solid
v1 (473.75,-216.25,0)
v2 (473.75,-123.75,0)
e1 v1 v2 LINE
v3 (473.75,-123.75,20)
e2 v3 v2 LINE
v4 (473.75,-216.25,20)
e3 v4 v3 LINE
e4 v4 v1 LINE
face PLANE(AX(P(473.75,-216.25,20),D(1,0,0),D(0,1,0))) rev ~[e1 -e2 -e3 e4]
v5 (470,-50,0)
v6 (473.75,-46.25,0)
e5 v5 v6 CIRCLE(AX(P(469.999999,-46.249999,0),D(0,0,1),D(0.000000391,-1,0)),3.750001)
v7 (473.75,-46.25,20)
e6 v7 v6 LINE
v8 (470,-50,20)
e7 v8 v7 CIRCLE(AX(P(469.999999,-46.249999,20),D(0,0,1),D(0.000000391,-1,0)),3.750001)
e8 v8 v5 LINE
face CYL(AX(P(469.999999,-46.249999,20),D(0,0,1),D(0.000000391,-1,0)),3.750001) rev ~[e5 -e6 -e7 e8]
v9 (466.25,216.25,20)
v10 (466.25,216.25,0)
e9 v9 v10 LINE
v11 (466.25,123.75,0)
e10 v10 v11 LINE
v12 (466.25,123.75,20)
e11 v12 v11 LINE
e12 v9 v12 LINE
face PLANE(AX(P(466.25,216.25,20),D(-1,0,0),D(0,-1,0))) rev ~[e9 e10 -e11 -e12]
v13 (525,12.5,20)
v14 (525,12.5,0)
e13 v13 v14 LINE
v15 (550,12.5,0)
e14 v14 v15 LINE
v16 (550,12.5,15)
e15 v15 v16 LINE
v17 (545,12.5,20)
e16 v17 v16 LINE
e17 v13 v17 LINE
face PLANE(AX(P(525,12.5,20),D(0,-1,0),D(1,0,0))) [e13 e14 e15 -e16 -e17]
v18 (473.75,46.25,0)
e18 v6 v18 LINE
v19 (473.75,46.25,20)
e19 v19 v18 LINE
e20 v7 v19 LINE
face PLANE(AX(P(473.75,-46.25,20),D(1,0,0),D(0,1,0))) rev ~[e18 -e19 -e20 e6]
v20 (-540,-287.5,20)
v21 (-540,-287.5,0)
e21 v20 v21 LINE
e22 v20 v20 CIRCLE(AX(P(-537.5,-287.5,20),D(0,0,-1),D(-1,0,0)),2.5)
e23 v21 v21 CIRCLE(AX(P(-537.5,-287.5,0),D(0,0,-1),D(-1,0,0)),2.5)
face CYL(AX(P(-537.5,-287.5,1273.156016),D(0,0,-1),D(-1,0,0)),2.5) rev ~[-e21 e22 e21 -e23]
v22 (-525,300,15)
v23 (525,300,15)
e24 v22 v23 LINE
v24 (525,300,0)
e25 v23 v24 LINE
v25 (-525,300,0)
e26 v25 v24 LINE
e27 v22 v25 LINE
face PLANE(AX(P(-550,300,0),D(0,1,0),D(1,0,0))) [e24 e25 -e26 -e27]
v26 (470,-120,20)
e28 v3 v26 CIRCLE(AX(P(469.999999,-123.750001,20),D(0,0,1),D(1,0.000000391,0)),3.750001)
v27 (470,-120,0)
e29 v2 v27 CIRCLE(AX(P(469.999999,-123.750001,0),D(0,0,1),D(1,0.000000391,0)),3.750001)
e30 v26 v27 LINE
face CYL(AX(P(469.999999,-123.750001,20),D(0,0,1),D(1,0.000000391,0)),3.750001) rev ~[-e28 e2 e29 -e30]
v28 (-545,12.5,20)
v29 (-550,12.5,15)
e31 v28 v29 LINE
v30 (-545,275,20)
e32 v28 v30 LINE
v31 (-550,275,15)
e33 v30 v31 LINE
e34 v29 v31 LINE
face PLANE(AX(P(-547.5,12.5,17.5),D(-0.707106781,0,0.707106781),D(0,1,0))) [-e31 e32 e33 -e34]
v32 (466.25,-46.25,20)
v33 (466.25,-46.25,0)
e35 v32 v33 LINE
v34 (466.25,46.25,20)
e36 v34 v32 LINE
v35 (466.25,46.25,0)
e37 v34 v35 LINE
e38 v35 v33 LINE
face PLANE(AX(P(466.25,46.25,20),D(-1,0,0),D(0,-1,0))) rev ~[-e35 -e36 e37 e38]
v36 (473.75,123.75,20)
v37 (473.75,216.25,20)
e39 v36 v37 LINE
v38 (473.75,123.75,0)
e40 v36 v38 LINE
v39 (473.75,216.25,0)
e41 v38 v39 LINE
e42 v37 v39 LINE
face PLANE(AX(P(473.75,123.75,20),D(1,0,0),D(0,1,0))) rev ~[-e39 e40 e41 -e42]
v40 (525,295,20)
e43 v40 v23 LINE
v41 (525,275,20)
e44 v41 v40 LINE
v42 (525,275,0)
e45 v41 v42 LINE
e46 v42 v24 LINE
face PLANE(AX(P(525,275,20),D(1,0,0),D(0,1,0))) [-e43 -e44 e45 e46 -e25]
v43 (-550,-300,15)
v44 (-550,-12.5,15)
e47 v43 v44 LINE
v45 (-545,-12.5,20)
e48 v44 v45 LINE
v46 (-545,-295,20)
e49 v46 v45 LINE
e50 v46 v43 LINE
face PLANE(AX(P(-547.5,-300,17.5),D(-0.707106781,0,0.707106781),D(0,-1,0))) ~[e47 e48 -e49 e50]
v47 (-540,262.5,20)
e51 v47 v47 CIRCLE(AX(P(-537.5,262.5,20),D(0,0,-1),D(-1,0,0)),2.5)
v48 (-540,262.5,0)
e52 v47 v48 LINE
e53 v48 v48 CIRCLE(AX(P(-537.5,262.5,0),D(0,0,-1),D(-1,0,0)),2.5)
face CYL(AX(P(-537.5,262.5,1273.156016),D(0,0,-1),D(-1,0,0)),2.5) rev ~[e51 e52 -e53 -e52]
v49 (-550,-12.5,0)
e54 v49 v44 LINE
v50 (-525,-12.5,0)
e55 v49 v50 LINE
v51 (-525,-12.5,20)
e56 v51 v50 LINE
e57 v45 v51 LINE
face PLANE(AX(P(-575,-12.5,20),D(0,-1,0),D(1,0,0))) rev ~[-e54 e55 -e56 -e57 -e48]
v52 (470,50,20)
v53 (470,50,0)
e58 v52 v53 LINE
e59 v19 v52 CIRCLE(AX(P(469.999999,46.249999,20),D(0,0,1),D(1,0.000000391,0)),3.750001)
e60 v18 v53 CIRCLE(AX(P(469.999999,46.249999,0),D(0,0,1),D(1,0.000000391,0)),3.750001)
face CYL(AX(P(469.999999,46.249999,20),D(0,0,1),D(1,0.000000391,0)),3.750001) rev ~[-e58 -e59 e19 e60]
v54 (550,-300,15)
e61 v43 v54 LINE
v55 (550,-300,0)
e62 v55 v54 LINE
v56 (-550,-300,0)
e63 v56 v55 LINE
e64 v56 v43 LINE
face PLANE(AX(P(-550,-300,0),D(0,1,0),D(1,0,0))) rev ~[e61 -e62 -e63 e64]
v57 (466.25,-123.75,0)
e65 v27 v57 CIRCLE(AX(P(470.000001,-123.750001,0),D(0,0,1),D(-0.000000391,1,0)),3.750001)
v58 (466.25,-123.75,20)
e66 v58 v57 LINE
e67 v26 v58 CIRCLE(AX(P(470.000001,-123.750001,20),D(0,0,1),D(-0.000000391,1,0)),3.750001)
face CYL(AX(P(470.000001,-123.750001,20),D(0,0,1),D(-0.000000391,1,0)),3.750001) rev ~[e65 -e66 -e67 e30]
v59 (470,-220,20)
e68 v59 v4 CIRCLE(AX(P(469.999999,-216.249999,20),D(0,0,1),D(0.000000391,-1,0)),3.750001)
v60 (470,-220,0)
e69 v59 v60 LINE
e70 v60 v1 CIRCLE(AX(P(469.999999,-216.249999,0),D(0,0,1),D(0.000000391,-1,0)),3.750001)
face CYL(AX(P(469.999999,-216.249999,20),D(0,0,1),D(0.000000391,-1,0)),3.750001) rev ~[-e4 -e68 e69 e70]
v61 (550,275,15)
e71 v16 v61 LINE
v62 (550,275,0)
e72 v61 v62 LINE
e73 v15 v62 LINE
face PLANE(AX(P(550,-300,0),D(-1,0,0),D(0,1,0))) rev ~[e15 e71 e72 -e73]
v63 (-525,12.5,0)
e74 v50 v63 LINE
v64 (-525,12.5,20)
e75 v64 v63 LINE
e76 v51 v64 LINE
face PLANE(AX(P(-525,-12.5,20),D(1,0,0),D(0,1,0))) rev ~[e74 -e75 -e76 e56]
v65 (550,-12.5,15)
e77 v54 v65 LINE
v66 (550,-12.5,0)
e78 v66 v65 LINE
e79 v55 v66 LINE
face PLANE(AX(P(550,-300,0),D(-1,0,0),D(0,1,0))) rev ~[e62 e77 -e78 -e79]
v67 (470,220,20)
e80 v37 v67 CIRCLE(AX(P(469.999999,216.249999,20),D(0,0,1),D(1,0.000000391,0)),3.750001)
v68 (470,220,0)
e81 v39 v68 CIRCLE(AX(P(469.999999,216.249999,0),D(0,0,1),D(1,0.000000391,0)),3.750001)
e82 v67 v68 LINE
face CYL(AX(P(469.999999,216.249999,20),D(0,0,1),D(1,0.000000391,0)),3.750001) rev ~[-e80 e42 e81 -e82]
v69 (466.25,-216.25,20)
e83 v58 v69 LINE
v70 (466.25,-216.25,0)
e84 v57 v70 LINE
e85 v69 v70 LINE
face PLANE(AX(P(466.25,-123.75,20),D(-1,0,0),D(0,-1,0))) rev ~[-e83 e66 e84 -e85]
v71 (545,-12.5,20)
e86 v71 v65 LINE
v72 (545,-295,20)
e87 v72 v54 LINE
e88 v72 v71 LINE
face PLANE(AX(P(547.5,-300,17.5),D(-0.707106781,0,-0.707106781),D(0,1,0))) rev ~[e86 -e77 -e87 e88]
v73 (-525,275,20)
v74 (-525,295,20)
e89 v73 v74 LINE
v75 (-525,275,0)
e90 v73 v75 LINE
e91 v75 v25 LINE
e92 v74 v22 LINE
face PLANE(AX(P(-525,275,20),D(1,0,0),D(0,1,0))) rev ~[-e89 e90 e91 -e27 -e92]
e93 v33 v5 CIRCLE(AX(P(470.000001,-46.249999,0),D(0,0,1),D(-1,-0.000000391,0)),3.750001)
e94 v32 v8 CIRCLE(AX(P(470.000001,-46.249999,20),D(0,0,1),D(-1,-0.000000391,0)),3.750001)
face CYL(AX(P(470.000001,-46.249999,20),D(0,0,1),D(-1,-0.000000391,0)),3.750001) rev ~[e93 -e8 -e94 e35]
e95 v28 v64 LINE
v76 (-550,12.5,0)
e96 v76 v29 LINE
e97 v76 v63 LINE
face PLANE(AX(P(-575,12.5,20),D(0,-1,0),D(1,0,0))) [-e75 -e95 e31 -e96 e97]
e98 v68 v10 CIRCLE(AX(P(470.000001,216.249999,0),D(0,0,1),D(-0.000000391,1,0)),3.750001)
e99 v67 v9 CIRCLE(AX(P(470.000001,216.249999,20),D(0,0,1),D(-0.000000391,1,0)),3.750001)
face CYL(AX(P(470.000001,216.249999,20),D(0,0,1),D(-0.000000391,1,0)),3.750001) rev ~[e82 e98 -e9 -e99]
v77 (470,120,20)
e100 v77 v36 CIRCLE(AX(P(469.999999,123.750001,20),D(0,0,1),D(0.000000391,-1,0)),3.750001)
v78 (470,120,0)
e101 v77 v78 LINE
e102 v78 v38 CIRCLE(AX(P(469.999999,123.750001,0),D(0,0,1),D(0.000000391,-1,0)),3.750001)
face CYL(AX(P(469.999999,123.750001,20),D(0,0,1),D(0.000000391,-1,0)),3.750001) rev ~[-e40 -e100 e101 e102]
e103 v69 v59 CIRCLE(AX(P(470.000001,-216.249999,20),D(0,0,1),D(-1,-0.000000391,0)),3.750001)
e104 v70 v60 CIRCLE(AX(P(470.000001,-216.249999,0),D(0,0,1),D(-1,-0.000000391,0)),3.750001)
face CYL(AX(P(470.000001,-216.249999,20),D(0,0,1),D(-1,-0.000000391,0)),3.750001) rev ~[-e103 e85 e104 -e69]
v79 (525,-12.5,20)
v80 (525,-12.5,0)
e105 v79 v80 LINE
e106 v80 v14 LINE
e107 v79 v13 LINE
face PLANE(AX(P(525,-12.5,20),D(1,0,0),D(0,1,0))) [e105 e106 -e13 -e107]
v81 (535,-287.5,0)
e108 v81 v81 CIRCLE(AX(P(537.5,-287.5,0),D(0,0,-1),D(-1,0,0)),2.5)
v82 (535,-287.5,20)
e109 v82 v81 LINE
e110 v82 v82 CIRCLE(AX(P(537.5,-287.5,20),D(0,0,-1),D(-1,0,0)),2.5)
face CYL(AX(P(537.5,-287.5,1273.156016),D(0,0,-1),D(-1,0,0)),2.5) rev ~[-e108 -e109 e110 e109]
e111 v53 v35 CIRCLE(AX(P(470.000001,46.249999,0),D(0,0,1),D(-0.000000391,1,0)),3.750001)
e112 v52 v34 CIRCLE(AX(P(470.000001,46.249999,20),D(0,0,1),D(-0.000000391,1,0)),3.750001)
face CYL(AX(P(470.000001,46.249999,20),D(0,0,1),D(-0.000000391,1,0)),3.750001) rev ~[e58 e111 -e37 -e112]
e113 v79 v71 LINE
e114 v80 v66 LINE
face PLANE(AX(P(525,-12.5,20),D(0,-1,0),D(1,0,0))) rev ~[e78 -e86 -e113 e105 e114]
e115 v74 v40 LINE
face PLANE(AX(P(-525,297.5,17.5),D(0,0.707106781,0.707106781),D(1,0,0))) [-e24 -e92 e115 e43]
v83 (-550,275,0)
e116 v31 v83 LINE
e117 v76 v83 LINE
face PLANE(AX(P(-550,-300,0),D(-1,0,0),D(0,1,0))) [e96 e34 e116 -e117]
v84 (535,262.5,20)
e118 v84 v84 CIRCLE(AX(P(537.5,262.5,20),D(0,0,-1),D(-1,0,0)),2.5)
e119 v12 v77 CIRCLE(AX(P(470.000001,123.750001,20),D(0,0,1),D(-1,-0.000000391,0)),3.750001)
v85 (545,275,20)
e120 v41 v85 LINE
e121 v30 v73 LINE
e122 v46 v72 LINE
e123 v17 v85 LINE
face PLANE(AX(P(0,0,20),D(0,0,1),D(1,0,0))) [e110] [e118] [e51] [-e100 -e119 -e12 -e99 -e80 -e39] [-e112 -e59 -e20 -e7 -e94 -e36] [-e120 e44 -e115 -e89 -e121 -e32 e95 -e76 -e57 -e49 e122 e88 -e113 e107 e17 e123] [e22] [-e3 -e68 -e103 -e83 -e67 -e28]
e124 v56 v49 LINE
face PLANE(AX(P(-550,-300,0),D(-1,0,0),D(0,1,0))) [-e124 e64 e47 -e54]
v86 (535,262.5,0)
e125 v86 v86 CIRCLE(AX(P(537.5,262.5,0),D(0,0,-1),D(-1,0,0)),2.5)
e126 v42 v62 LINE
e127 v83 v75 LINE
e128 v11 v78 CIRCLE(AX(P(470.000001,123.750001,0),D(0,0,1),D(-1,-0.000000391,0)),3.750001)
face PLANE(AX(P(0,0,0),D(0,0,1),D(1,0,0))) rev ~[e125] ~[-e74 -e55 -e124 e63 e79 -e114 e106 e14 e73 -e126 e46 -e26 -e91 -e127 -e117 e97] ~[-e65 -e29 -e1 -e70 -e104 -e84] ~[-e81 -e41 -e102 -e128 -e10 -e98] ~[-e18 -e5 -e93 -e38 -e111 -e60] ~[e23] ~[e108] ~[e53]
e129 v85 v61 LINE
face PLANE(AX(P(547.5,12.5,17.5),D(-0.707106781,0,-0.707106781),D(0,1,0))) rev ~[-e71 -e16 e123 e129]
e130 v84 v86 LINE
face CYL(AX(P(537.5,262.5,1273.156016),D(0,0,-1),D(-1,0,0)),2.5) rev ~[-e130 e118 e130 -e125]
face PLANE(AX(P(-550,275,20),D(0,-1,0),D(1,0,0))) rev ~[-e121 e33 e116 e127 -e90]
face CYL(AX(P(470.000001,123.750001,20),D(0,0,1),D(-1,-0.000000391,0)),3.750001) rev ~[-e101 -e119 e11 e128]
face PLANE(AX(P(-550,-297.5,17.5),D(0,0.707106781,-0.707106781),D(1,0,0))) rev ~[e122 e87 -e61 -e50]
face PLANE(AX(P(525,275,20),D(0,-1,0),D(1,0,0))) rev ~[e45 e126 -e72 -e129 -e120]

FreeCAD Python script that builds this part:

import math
import FreeCAD as App
import Part
import Sketcher
Q = App.Units.Quantity


def edges_at(feature, points):
    """Names of the edges that pass closest to the given points."""
    edges = feature.Shape.Edges
    near = lambda p: min(range(len(edges)), key=lambda i: edges[i].distToShape(Part.Vertex(*p))[0])
    return sorted({f"Edge{near(p) + 1}" for p in points})


def add_polygon(sketch, points):
    """Adds a closed chain of lines whose ends are joined by coincident constraints."""
    first, n = sketch.GeometryCount, len(points)
    for a, b in zip(points, points[1:] + points[:1]):
        sketch.addGeometry(Part.LineSegment(App.Vector(*a, 0), App.Vector(*b, 0)), False)
    for i in range(n):
        sketch.addConstraint(Sketcher.Constraint("Coincident", first + i, 2, first + (i + 1) % n, 1))

doc = App.newDocument("Part")
body = doc.addObject("PartDesign::Body", "Body")

# Sketch on XY plane
sketch1 = body.newObject("Sketcher::SketchObject", "Sketch")
sketch1.AttachmentSupport = (doc.getObject("XY_Plane"), [""])
sketch1.MapMode = "FlatFace"
add_polygon(sketch1, [(-550, 300), (-550, -300), (550, -300), (550, 300)])  # lines 0-3
sketch1.addConstraint(Sketcher.Constraint("Vertical", 0))
sketch1.addConstraint(Sketcher.Constraint("Horizontal", 1))
sketch1.addConstraint(Sketcher.Constraint("Vertical", 2))
sketch1.addConstraint(Sketcher.Constraint("Horizontal", 3))
sketch1.addConstraint(Sketcher.Constraint("Symmetric", 0, 2, 2, 2, -1, 1))
sketch1.addConstraint(Sketcher.Constraint("DistanceX", 1, 1, 1, 2, Q("1100 mm")))
sketch1.addConstraint(Sketcher.Constraint("DistanceY", 0, 2, 0, 1, Q("600 mm")))
pad1 = body.newObject("PartDesign::Pad", "Pad")
pad1.Profile = sketch1
pad1.Length = 20

# Sketch on XY plane
sketch2 = body.newObject("Sketcher::SketchObject", "Sketch001")
sketch2.AttachmentSupport = (doc.getObject("XY_Plane"), [""])
sketch2.MapMode = "FlatFace"
sketch2.AttachmentOffset = App.Placement(App.Vector(0, 0, 20), App.Rotation())
sketch2.addGeometry(Part.LineSegment(App.Vector(473.8, -216.2, 0), App.Vector(473.8, -123.8, 0)), False)  # 0
sketch2.addGeometry(Part.ArcOfCircle(Part.Circle(App.Vector(470, -123.8, 0), App.Vector(0, 0, 1), 3.8), math.radians(0), math.radians(90)), False)  # 1
sketch2.addGeometry(Part.ArcOfCircle(Part.Circle(App.Vector(470, -123.8, 0), App.Vector(0, 0, 1), 3.8), math.radians(90), math.radians(180)), False)  # 2
sketch2.addGeometry(Part.LineSegment(App.Vector(466.2, -123.8, 0), App.Vector(466.2, -216.2, 0)), False)  # 3
sketch2.addGeometry(Part.ArcOfCircle(Part.Circle(App.Vector(470, -216.2, 0), App.Vector(0, 0, 1), 3.8), math.radians(-180), math.radians(-90)), False)  # 4
sketch2.addGeometry(Part.ArcOfCircle(Part.Circle(App.Vector(470, -216.2, 0), App.Vector(0, 0, 1), 3.8), math.radians(-90), math.radians(0)), False)  # 5
sketch2.addGeometry(Part.LineSegment(App.Vector(473.8, -46.2, 0), App.Vector(473.8, 46.2, 0)), False)  # 6
sketch2.addGeometry(Part.ArcOfCircle(Part.Circle(App.Vector(470, 46.2, 0), App.Vector(0, 0, 1), 3.8), math.radians(0), math.radians(90)), False)  # 7
sketch2.addGeometry(Part.ArcOfCircle(Part.Circle(App.Vector(470, 46.2, 0), App.Vector(0, 0, 1), 3.8), math.radians(90), math.radians(180)), False)  # 8
sketch2.addGeometry(Part.LineSegment(App.Vector(466.2, 46.2, 0), App.Vector(466.2, -46.2, 0)), False)  # 9
sketch2.addGeometry(Part.ArcOfCircle(Part.Circle(App.Vector(470, -46.2, 0), App.Vector(0, 0, 1), 3.8), math.radians(-180), math.radians(-90)), False)  # 10
sketch2.addGeometry(Part.ArcOfCircle(Part.Circle(App.Vector(470, -46.2, 0), App.Vector(0, 0, 1), 3.8), math.radians(-90), math.radians(0)), False)  # 11
sketch2.addGeometry(Part.LineSegment(App.Vector(466.2, 216.2, 0), App.Vector(466.2, 123.8, 0)), False)  # 12
sketch2.addGeometry(Part.ArcOfCircle(Part.Circle(App.Vector(470, 123.8, 0), App.Vector(0, 0, 1), 3.8), math.radians(-180), math.radians(-90)), False)  # 13
sketch2.addGeometry(Part.ArcOfCircle(Part.Circle(App.Vector(470, 123.8, 0), App.Vector(0, 0, 1), 3.8), math.radians(-90), math.radians(0)), False)  # 14
sketch2.addGeometry(Part.LineSegment(App.Vector(473.8, 123.8, 0), App.Vector(473.8, 216.2, 0)), False)  # 15
sketch2.addGeometry(Part.ArcOfCircle(Part.Circle(App.Vector(470, 216.2, 0), App.Vector(0, 0, 1), 3.8), math.radians(0), math.radians(90)), False)  # 16
sketch2.addGeometry(Part.ArcOfCircle(Part.Circle(App.Vector(470, 216.2, 0), App.Vector(0, 0, 1), 3.8), math.radians(90), math.radians(180)), False)  # 17
add_polygon(sketch2, [(-575, 12.5), (-575, -12.5), (-525, -12.5), (-525, 12.5)])  # lines 18-21
add_polygon(sketch2, [(525, 12.5), (525, -12.5), (575, -12.5), (575, 12.5)])  # lines 22-25
add_polygon(sketch2, [(-550, 300), (-550, 275), (-525, 275), (-525, 300)])  # lines 26-29
add_polygon(sketch2, [(525, 300), (525, 275), (550, 275), (550, 300)])  # lines 30-33
sketch2.addConstraint(Sketcher.Constraint("Tangent", 0, 2, 1, 1))
sketch2.addConstraint(Sketcher.Constraint("Tangent", 1, 2, 2, 1))
sketch2.addConstraint(Sketcher.Constraint("Tangent", 2, 2, 3, 1))
sketch2.addConstraint(Sketcher.Constraint("Tangent", 3, 2, 4, 1))
sketch2.addConstraint(Sketcher.Constraint("Tangent", 4, 2, 5, 1))
sketch2.addConstraint(Sketcher.Constraint("Tangent", 5, 2, 0, 1))
sketch2.addConstraint(Sketcher.Constraint("Tangent", 6, 2, 7, 1))
sketch2.addConstraint(Sketcher.Constraint("Tangent", 7, 2, 8, 1))
sketch2.addConstraint(Sketcher.Constraint("Tangent", 8, 2, 9, 1))
sketch2.addConstraint(Sketcher.Constraint("Tangent", 9, 2, 10, 1))
sketch2.addConstraint(Sketcher.Constraint("Tangent", 10, 2, 11, 1))
sketch2.addConstraint(Sketcher.Constraint("Tangent", 11, 2, 6, 1))
sketch2.addConstraint(Sketcher.Constraint("Tangent", 12, 2, 13, 1))
sketch2.addConstraint(Sketcher.Constraint("Tangent", 13, 2, 14, 1))
sketch2.addConstraint(Sketcher.Constraint("Tangent", 14, 2, 15, 1))
sketch2.addConstraint(Sketcher.Constraint("Tangent", 15, 2, 16, 1))
sketch2.addConstraint(Sketcher.Constraint("Tangent", 16, 2, 17, 1))
sketch2.addConstraint(Sketcher.Constraint("Tangent", 17, 2, 12, 1))
sketch2.addConstraint(Sketcher.Constraint("Vertical", 0))
sketch2.addConstraint(Sketcher.Constraint("Vertical", 3))
sketch2.addConstraint(Sketcher.Constraint("Vertical", 6))
sketch2.addConstraint(Sketcher.Constraint("Vertical", 9))
sketch2.addConstraint(Sketcher.Constraint("Vertical", 12))
sketch2.addConstraint(Sketcher.Constraint("Vertical", 15))
sketch2.addConstraint(Sketcher.Constraint("Vertical", 18))
sketch2.addConstraint(Sketcher.Constraint("Horizontal", 19))
sketch2.addConstraint(Sketcher.Constraint("Vertical", 20))
sketch2.addConstraint(Sketcher.Constraint("Horizontal", 21))
sketch2.addConstraint(Sketcher.Constraint("Vertical", 22))
sketch2.addConstraint(Sketcher.Constraint("Horizontal", 23))
sketch2.addConstraint(Sketcher.Constraint("Vertical", 24))
sketch2.addConstraint(Sketcher.Constraint("Horizontal", 25))
sketch2.addConstraint(Sketcher.Constraint("Vertical", 26))
sketch2.addConstraint(Sketcher.Constraint("Horizontal", 27))
sketch2.addConstraint(Sketcher.Constraint("Vertical", 28))
sketch2.addConstraint(Sketcher.Constraint("Horizontal", 29))
sketch2.addConstraint(Sketcher.Constraint("Vertical", 30))
sketch2.addConstraint(Sketcher.Constraint("Horizontal", 31))
sketch2.addConstraint(Sketcher.Constraint("Vertical", 32))
sketch2.addConstraint(Sketcher.Constraint("Horizontal", 33))
sketch2.addConstraint(Sketcher.Constraint("Equal", 1, 2))
sketch2.addConstraint(Sketcher.Constraint("Equal", 2, 4))
sketch2.addConstraint(Sketcher.Constraint("Equal", 5, 7))
sketch2.addConstraint(Sketcher.Constraint("Equal", 7, 8))
sketch2.addConstraint(Sketcher.Constraint("Equal", 8, 10))
sketch2.addConstraint(Sketcher.Constraint("Equal", 11, 13))
sketch2.addConstraint(Sketcher.Constraint("Equal", 13, 14))
sketch2.addConstraint(Sketcher.Constraint("Equal", 14, 16))
sketch2.addConstraint(Sketcher.Constraint("Symmetric", 20, 2, 22, 2, -1, 1))
sketch2.addConstraint(Sketcher.Constraint("Symmetric", 18, 2, 24, 2, -1, 1))
sketch2.addConstraint(Sketcher.Constraint("Symmetric", 27, 2, 30, 2, -2))
sketch2.addConstraint(Sketcher.Constraint("Symmetric", 29, 2, 32, 2, -2))
sketch2.addConstraint(Sketcher.Constraint("Symmetric", 1, 3, 13, 3, -1))
sketch2.addConstraint(Sketcher.Constraint("Symmetric", 7, 2, 10, 2, -1))
sketch2.addConstraint(Sketcher.Constraint("Symmetric", 4, 2, 16, 2, -1))
sketch2.addConstraint(Sketcher.Constraint("Horizontal", 19, 2, 22, 2))
sketch2.addConstraint(Sketcher.Constraint("Vertical", 5, 3, 7, 3))
sketch2.addConstraint(Sketcher.Constraint("Vertical", 17, 3, 1, 2))
sketch2.addConstraint(Sketcher.Constraint("Vertical", 1, 2, 4, 2))
sketch2.addConstraint(Sketcher.Constraint("Vertical", 4, 2, 7, 2))
sketch2.addConstraint(Sketcher.Constraint("Vertical", 10, 2, 13, 2))
sketch2.addConstraint(Sketcher.Constraint("Vertical", 20, 2, 27, 2))
sketch2.addConstraint(Sketcher.Constraint("Equal", 3, 6))
sketch2.addConstraint(Sketcher.Constraint("Equal", 33, 18))
sketch2.addConstraint(Sketcher.Constraint("Equal", 24, 26))
sketch2.addConstraint(Sketcher.Constraint("DistanceX", 19, 1, 19, 2, Q("50 mm")))
sketch2.addConstraint(Sketcher.Constraint("DistanceX", 27, 1, 27, 2, Q("25 mm")))
sketch2.addConstraint(Sketcher.Constraint("Radius", 1, Q("3.750001 mm")))
sketch2.addConstraint(Sketcher.Constraint("DistanceY", 0, 1, 0, 2, Q("92.5 mm")))
sketch2.addConstraint(Sketcher.Constraint("DistanceX", -1, 1, 1, 3, Q("469.999999 mm")))
sketch2.addConstraint(Sketcher.Constraint("DistanceY", 1, 2, -1, 1, Q("120 mm")))
sketch2.addConstraint(Sketcher.Constraint("DistanceX", 18, 2, -1, 1, Q("575 mm")))
sketch2.addConstraint(Sketcher.Constraint("DistanceY", -1, 1, 26, 2, Q("275 mm")))
pocket1 = body.newObject("PartDesign::Pocket", "Pocket")
pocket1.Profile = sketch2
pocket1.Type = "ThroughAll"

# Sketch on XY plane
sketch3 = body.newObject("Sketcher::SketchObject", "Sketch002")
sketch3.AttachmentSupport = (doc.getObject("XY_Plane"), [""])
sketch3.MapMode = "FlatFace"
sketch3.AttachmentOffset = App.Placement(App.Vector(0, 0, 20), App.Rotation())
sketch3.addGeometry(Part.Circle(App.Vector(537.5, -287.5, 0), App.Vector(0, 0, 1), 2.5), False)
sketch3.addGeometry(Part.Circle(App.Vector(-537.5, -287.5, 0), App.Vector(0, 0, 1), 2.5), False)
sketch3.addGeometry(Part.Circle(App.Vector(537.5, 262.5, 0), App.Vector(0, 0, 1), 2.5), False)
sketch3.addGeometry(Part.Circle(App.Vector(-537.5, 262.5, 0), App.Vector(0, 0, 1), 2.5), False)
sketch3.addConstraint(Sketcher.Constraint("Equal", 0, 1))
sketch3.addConstraint(Sketcher.Constraint("Equal", 1, 2))
sketch3.addConstraint(Sketcher.Constraint("Equal", 2, 3))
sketch3.addConstraint(Sketcher.Constraint("Symmetric", 0, 3, 1, 3, -2))
sketch3.addConstraint(Sketcher.Constraint("Symmetric", 2, 3, 3, 3, -2))
sketch3.addConstraint(Sketcher.Constraint("Vertical", 0, 3, 2, 3))
sketch3.addConstraint(Sketcher.Constraint("Diameter", 0, Q("5 mm")))
sketch3.addConstraint(Sketcher.Constraint("DistanceX", 1, 3, 0, 3, Q("1075 mm")))
sketch3.addConstraint(Sketcher.Constraint("DistanceY", 0, 3, 2, 3, Q("550 mm")))
sketch3.addConstraint(Sketcher.Constraint("DistanceY", 0, 3, -1, 1, Q("287.5 mm")))
doc.recompute()
hole = body.newObject("PartDesign::Hole", "Hole")
hole.Profile = sketch3
hole.ThreadType = "None"
hole.Diameter = 5
hole.DepthType = "ThroughAll"
doc.recompute()

chamfer = body.newObject("PartDesign::Chamfer", "Chamfer")
chamfer.Base = (hole, edges_at(hole, [
    (0, -300, 20),
    (-550, -156.25, 20),
    (-550, 143.75, 20),
    (0, 300, 20),
    (550, -156.25, 20),
    (550, 143.75, 20),
]))
chamfer.Size = 5

doc.recompute()
